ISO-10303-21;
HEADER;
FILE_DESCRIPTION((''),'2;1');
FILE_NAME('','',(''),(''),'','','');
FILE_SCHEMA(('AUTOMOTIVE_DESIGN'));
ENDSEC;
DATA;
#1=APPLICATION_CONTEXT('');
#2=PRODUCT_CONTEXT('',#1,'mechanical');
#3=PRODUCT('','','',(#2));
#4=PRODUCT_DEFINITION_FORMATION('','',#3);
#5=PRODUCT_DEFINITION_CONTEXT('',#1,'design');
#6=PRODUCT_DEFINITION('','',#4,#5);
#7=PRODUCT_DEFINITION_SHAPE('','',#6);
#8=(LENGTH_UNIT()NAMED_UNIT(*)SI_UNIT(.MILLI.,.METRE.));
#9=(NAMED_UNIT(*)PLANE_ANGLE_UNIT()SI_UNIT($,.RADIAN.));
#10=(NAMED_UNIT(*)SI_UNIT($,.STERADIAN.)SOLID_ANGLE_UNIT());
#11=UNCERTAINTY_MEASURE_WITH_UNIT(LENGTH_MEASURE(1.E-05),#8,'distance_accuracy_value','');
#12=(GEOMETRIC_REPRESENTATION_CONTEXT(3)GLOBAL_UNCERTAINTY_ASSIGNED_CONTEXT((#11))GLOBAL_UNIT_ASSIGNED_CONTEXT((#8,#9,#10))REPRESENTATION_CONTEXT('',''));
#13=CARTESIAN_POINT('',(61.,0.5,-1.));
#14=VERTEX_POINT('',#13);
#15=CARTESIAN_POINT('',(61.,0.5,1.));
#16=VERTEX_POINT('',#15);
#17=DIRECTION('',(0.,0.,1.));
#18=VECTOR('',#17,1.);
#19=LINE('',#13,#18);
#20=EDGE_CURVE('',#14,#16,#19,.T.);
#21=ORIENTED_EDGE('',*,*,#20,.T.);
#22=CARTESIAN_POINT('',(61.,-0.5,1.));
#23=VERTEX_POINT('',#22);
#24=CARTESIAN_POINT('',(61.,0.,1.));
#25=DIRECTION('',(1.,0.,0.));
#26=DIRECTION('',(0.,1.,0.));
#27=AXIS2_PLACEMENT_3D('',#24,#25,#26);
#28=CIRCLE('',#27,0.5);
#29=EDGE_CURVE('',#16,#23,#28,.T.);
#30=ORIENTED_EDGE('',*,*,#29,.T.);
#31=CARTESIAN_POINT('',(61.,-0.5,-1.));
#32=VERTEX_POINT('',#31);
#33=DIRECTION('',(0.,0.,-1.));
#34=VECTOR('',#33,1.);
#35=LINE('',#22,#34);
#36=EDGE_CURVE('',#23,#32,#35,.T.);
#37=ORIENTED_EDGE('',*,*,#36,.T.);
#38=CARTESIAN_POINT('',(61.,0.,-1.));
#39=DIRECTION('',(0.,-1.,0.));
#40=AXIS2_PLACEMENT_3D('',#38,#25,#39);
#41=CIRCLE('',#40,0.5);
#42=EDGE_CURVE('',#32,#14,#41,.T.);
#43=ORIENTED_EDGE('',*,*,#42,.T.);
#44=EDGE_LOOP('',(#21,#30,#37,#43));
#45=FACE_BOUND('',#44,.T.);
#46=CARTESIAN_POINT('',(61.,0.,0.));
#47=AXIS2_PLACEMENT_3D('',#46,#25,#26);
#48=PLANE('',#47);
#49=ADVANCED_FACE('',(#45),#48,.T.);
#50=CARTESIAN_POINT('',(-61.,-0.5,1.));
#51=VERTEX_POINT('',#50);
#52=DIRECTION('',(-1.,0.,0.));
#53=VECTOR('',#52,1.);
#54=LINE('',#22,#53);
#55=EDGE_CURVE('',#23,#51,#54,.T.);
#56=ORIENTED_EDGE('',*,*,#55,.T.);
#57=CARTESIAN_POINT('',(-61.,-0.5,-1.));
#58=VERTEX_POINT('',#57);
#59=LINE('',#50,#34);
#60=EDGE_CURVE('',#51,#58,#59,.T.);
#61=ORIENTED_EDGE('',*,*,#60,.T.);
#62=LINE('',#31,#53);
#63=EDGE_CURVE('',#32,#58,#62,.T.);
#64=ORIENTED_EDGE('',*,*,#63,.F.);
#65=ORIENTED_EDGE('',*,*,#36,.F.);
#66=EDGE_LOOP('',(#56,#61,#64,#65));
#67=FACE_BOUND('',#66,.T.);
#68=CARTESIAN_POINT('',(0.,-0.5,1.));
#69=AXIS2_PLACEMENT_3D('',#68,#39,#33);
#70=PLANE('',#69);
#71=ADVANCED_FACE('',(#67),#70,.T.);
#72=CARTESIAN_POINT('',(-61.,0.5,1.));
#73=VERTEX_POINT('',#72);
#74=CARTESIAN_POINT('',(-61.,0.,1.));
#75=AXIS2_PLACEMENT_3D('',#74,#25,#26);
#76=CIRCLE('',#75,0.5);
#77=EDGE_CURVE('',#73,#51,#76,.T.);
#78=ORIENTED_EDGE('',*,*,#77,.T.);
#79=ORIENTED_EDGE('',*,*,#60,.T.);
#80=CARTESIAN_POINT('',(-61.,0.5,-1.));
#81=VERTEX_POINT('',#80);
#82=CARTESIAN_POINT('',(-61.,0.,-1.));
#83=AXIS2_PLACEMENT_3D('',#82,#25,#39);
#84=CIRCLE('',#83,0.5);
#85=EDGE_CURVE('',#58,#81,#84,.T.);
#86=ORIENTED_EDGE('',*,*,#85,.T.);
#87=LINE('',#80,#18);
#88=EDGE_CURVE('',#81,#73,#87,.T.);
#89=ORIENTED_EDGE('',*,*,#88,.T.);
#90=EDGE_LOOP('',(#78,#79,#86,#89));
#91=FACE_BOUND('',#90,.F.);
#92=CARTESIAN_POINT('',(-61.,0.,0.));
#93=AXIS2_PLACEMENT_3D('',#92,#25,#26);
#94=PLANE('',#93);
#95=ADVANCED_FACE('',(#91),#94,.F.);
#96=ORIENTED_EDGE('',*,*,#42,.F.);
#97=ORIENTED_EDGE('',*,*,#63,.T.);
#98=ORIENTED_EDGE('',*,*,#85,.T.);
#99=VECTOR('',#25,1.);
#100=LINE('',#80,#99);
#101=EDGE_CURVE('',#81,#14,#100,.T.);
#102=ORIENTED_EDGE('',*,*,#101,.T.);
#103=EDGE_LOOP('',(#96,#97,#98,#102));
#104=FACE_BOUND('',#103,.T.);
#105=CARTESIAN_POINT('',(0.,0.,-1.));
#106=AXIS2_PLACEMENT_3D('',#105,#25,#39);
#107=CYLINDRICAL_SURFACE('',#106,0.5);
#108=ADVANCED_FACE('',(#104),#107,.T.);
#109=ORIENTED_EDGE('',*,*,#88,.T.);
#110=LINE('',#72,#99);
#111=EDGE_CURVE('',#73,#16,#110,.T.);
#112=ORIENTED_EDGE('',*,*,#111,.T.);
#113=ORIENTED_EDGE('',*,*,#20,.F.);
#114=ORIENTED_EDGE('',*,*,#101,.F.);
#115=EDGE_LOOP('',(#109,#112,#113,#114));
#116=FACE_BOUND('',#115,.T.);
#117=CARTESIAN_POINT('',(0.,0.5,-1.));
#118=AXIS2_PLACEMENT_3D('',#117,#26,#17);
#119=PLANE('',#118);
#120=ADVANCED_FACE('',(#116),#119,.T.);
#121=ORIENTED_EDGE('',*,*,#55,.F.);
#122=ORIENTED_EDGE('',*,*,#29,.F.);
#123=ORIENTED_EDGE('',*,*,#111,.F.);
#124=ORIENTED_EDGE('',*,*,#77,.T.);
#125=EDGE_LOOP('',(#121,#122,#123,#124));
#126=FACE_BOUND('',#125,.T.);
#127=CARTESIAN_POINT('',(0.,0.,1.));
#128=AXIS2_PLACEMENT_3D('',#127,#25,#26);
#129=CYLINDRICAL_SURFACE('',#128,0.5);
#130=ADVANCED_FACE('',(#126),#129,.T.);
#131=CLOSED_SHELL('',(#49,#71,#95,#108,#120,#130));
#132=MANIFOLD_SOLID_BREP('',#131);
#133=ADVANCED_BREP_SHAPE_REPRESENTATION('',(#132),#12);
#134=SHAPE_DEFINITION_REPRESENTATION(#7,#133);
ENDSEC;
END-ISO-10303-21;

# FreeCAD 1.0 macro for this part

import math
import FreeCAD as App
import Part
import Sketcher
Q = App.Units.Quantity

doc = App.newDocument("Part")
body = doc.addObject("PartDesign::Body", "Body")

# Sketch on YZ plane
sketch1 = doc.addObject("Sketcher::SketchObject", "Sketch")
body.addObject(sketch1)
sketch1.AttachmentSupport = (doc.YZ_Plane, [""])
sketch1.MapMode = "FlatFace"
sketch1.addGeometry(Part.ArcOfCircle(Part.Circle(App.Vector(0, -1, 0), App.Vector(0, 0, 1), 0.5), math.radians(180), math.radians(360)), False)
sketch1.addGeometry(Part.LineSegment(App.Vector(0.5, -1, 0), App.Vector(0.5, 1, 0)), False)
sketch1.addGeometry(Part.ArcOfCircle(Part.Circle(App.Vector(0, 1, 0), App.Vector(0, 0, 1), 0.5), math.radians(0), math.radians(180)), False)
sketch1.addGeometry(Part.LineSegment(App.Vector(-0.5, 1, 0), App.Vector(-0.5, -1, 0)), False)
sketch1.addConstraint(Sketcher.Constraint("Tangent", 0, 2, 1, 1))
sketch1.addConstraint(Sketcher.Constraint("Tangent", 1, 2, 2, 1))
sketch1.addConstraint(Sketcher.Constraint("Tangent", 2, 2, 3, 1))
sketch1.addConstraint(Sketcher.Constraint("Tangent", 3, 2, 0, 1))
sketch1.addConstraint(Sketcher.Constraint("Vertical", 1))
sketch1.addConstraint(Sketcher.Constraint("Vertical", 3))
sketch1.addConstraint(Sketcher.Constraint("Symmetric", 0, 3, 2, 3, -1, 1))
sketch1.addConstraint(Sketcher.Constraint("Radius", 0, Q("0.5 mm")))
sketch1.addConstraint(Sketcher.Constraint("DistanceY", 1, 1, 1, 2, Q("2 mm")))
pad1 = doc.addObject("PartDesign::Pad", "Pad")
body.addObject(pad1)
pad1.Profile = sketch1
pad1.Length = 122
pad1.Midplane = True

doc.recompute()
